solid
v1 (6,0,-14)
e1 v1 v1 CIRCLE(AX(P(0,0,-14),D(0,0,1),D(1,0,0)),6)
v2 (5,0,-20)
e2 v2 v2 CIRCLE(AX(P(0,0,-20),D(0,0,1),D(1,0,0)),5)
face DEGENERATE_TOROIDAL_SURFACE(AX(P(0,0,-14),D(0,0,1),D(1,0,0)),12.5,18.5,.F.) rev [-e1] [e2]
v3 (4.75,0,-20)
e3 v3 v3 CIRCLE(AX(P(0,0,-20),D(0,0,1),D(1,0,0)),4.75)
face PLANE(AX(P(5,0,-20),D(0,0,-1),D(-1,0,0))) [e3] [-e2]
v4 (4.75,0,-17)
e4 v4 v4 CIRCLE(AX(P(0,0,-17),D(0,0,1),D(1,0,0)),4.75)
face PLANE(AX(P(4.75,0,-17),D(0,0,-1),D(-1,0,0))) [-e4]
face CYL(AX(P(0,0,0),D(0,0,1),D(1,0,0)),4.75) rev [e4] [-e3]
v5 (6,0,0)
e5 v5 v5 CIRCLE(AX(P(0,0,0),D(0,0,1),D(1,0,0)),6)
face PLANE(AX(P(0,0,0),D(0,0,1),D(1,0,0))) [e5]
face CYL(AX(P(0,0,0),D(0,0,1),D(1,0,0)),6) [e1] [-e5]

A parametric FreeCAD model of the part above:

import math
import FreeCAD as App
import Part
import Sketcher
Q = App.Units.Quantity

doc = App.newDocument("Part")
body = doc.addObject("PartDesign::Body", "Body")

# Sketch on XZ plane
sketch1 = body.newObject("Sketcher::SketchObject", "Sketch")
sketch1.AttachmentSupport = (doc.getObject("XZ_Plane"), [""])
sketch1.MapMode = "FlatFace"
sketch1.addGeometry(Part.LineSegment(App.Vector(0, 0, 0), App.Vector(6, 0, 0)), False)
sketch1.addGeometry(Part.LineSegment(App.Vector(6, 0, 0), App.Vector(6, -14, 0)), False)
sketch1.addGeometry(Part.ArcOfCircle(Part.Circle(App.Vector(-12.5, -14, 0), App.Vector(0, 0, 1), 18.5), math.radians(-18.924644), math.radians(0)), False)
sketch1.addGeometry(Part.LineSegment(App.Vector(5, -20, 0), App.Vector(4.75, -20, 0)), False)
sketch1.addGeometry(Part.LineSegment(App.Vector(4.75, -20, 0), App.Vector(4.75, -17, 0)), False)
sketch1.addGeometry(Part.LineSegment(App.Vector(4.75, -17, 0), App.Vector(0, -17, 0)), False)
sketch1.addGeometry(Part.LineSegment(App.Vector(0, -17, 0), App.Vector(0, 0, 0)), False)
sketch1.addConstraint(Sketcher.Constraint("Coincident", 0, 2, 1, 1))
sketch1.addConstraint(Sketcher.Constraint("Tangent", 1, 2, 2, 2))
sketch1.addConstraint(Sketcher.Constraint("Coincident", 2, 1, 3, 1))
sketch1.addConstraint(Sketcher.Constraint("Coincident", 3, 2, 4, 1))
sketch1.addConstraint(Sketcher.Constraint("Coincident", 4, 2, 5, 1))
sketch1.addConstraint(Sketcher.Constraint("Coincident", 5, 2, 6, 1))
sketch1.addConstraint(Sketcher.Constraint("Coincident", 6, 2, 0, 1))
sketch1.addConstraint(Sketcher.Constraint("Horizontal", 0))
sketch1.addConstraint(Sketcher.Constraint("Vertical", 1))
sketch1.addConstraint(Sketcher.Constraint("Horizontal", 3))
sketch1.addConstraint(Sketcher.Constraint("Vertical", 4))
sketch1.addConstraint(Sketcher.Constraint("Horizontal", 5))
sketch1.addConstraint(Sketcher.Constraint("Vertical", 6))
sketch1.addConstraint(Sketcher.Constraint("Coincident", 6, 2, -1, 1))
sketch1.addConstraint(Sketcher.Constraint("Radius", 2, Q("18.5 mm")))
sketch1.addConstraint(Sketcher.Constraint("DistanceX", 0, 1, 0, 2, Q("6 mm")))
sketch1.addConstraint(Sketcher.Constraint("DistanceY", 1, 2, 1, 1, Q("14 mm")))
sketch1.addConstraint(Sketcher.Constraint("DistanceY", 4, 1, 4, 2, Q("3 mm")))
sketch1.addConstraint(Sketcher.Constraint("DistanceY", 6, 1, 6, 2, Q("17 mm")))
sketch1.addConstraint(Sketcher.Constraint("DistanceX", 3, 2, 3, 1, Q("0.25 mm")))
revolution = body.newObject("PartDesign::Revolution", "Revolution")
revolution.Profile = sketch1
revolution.ReferenceAxis = (sketch1, ["V_Axis"])
revolution.Angle = 360

doc.recompute()
